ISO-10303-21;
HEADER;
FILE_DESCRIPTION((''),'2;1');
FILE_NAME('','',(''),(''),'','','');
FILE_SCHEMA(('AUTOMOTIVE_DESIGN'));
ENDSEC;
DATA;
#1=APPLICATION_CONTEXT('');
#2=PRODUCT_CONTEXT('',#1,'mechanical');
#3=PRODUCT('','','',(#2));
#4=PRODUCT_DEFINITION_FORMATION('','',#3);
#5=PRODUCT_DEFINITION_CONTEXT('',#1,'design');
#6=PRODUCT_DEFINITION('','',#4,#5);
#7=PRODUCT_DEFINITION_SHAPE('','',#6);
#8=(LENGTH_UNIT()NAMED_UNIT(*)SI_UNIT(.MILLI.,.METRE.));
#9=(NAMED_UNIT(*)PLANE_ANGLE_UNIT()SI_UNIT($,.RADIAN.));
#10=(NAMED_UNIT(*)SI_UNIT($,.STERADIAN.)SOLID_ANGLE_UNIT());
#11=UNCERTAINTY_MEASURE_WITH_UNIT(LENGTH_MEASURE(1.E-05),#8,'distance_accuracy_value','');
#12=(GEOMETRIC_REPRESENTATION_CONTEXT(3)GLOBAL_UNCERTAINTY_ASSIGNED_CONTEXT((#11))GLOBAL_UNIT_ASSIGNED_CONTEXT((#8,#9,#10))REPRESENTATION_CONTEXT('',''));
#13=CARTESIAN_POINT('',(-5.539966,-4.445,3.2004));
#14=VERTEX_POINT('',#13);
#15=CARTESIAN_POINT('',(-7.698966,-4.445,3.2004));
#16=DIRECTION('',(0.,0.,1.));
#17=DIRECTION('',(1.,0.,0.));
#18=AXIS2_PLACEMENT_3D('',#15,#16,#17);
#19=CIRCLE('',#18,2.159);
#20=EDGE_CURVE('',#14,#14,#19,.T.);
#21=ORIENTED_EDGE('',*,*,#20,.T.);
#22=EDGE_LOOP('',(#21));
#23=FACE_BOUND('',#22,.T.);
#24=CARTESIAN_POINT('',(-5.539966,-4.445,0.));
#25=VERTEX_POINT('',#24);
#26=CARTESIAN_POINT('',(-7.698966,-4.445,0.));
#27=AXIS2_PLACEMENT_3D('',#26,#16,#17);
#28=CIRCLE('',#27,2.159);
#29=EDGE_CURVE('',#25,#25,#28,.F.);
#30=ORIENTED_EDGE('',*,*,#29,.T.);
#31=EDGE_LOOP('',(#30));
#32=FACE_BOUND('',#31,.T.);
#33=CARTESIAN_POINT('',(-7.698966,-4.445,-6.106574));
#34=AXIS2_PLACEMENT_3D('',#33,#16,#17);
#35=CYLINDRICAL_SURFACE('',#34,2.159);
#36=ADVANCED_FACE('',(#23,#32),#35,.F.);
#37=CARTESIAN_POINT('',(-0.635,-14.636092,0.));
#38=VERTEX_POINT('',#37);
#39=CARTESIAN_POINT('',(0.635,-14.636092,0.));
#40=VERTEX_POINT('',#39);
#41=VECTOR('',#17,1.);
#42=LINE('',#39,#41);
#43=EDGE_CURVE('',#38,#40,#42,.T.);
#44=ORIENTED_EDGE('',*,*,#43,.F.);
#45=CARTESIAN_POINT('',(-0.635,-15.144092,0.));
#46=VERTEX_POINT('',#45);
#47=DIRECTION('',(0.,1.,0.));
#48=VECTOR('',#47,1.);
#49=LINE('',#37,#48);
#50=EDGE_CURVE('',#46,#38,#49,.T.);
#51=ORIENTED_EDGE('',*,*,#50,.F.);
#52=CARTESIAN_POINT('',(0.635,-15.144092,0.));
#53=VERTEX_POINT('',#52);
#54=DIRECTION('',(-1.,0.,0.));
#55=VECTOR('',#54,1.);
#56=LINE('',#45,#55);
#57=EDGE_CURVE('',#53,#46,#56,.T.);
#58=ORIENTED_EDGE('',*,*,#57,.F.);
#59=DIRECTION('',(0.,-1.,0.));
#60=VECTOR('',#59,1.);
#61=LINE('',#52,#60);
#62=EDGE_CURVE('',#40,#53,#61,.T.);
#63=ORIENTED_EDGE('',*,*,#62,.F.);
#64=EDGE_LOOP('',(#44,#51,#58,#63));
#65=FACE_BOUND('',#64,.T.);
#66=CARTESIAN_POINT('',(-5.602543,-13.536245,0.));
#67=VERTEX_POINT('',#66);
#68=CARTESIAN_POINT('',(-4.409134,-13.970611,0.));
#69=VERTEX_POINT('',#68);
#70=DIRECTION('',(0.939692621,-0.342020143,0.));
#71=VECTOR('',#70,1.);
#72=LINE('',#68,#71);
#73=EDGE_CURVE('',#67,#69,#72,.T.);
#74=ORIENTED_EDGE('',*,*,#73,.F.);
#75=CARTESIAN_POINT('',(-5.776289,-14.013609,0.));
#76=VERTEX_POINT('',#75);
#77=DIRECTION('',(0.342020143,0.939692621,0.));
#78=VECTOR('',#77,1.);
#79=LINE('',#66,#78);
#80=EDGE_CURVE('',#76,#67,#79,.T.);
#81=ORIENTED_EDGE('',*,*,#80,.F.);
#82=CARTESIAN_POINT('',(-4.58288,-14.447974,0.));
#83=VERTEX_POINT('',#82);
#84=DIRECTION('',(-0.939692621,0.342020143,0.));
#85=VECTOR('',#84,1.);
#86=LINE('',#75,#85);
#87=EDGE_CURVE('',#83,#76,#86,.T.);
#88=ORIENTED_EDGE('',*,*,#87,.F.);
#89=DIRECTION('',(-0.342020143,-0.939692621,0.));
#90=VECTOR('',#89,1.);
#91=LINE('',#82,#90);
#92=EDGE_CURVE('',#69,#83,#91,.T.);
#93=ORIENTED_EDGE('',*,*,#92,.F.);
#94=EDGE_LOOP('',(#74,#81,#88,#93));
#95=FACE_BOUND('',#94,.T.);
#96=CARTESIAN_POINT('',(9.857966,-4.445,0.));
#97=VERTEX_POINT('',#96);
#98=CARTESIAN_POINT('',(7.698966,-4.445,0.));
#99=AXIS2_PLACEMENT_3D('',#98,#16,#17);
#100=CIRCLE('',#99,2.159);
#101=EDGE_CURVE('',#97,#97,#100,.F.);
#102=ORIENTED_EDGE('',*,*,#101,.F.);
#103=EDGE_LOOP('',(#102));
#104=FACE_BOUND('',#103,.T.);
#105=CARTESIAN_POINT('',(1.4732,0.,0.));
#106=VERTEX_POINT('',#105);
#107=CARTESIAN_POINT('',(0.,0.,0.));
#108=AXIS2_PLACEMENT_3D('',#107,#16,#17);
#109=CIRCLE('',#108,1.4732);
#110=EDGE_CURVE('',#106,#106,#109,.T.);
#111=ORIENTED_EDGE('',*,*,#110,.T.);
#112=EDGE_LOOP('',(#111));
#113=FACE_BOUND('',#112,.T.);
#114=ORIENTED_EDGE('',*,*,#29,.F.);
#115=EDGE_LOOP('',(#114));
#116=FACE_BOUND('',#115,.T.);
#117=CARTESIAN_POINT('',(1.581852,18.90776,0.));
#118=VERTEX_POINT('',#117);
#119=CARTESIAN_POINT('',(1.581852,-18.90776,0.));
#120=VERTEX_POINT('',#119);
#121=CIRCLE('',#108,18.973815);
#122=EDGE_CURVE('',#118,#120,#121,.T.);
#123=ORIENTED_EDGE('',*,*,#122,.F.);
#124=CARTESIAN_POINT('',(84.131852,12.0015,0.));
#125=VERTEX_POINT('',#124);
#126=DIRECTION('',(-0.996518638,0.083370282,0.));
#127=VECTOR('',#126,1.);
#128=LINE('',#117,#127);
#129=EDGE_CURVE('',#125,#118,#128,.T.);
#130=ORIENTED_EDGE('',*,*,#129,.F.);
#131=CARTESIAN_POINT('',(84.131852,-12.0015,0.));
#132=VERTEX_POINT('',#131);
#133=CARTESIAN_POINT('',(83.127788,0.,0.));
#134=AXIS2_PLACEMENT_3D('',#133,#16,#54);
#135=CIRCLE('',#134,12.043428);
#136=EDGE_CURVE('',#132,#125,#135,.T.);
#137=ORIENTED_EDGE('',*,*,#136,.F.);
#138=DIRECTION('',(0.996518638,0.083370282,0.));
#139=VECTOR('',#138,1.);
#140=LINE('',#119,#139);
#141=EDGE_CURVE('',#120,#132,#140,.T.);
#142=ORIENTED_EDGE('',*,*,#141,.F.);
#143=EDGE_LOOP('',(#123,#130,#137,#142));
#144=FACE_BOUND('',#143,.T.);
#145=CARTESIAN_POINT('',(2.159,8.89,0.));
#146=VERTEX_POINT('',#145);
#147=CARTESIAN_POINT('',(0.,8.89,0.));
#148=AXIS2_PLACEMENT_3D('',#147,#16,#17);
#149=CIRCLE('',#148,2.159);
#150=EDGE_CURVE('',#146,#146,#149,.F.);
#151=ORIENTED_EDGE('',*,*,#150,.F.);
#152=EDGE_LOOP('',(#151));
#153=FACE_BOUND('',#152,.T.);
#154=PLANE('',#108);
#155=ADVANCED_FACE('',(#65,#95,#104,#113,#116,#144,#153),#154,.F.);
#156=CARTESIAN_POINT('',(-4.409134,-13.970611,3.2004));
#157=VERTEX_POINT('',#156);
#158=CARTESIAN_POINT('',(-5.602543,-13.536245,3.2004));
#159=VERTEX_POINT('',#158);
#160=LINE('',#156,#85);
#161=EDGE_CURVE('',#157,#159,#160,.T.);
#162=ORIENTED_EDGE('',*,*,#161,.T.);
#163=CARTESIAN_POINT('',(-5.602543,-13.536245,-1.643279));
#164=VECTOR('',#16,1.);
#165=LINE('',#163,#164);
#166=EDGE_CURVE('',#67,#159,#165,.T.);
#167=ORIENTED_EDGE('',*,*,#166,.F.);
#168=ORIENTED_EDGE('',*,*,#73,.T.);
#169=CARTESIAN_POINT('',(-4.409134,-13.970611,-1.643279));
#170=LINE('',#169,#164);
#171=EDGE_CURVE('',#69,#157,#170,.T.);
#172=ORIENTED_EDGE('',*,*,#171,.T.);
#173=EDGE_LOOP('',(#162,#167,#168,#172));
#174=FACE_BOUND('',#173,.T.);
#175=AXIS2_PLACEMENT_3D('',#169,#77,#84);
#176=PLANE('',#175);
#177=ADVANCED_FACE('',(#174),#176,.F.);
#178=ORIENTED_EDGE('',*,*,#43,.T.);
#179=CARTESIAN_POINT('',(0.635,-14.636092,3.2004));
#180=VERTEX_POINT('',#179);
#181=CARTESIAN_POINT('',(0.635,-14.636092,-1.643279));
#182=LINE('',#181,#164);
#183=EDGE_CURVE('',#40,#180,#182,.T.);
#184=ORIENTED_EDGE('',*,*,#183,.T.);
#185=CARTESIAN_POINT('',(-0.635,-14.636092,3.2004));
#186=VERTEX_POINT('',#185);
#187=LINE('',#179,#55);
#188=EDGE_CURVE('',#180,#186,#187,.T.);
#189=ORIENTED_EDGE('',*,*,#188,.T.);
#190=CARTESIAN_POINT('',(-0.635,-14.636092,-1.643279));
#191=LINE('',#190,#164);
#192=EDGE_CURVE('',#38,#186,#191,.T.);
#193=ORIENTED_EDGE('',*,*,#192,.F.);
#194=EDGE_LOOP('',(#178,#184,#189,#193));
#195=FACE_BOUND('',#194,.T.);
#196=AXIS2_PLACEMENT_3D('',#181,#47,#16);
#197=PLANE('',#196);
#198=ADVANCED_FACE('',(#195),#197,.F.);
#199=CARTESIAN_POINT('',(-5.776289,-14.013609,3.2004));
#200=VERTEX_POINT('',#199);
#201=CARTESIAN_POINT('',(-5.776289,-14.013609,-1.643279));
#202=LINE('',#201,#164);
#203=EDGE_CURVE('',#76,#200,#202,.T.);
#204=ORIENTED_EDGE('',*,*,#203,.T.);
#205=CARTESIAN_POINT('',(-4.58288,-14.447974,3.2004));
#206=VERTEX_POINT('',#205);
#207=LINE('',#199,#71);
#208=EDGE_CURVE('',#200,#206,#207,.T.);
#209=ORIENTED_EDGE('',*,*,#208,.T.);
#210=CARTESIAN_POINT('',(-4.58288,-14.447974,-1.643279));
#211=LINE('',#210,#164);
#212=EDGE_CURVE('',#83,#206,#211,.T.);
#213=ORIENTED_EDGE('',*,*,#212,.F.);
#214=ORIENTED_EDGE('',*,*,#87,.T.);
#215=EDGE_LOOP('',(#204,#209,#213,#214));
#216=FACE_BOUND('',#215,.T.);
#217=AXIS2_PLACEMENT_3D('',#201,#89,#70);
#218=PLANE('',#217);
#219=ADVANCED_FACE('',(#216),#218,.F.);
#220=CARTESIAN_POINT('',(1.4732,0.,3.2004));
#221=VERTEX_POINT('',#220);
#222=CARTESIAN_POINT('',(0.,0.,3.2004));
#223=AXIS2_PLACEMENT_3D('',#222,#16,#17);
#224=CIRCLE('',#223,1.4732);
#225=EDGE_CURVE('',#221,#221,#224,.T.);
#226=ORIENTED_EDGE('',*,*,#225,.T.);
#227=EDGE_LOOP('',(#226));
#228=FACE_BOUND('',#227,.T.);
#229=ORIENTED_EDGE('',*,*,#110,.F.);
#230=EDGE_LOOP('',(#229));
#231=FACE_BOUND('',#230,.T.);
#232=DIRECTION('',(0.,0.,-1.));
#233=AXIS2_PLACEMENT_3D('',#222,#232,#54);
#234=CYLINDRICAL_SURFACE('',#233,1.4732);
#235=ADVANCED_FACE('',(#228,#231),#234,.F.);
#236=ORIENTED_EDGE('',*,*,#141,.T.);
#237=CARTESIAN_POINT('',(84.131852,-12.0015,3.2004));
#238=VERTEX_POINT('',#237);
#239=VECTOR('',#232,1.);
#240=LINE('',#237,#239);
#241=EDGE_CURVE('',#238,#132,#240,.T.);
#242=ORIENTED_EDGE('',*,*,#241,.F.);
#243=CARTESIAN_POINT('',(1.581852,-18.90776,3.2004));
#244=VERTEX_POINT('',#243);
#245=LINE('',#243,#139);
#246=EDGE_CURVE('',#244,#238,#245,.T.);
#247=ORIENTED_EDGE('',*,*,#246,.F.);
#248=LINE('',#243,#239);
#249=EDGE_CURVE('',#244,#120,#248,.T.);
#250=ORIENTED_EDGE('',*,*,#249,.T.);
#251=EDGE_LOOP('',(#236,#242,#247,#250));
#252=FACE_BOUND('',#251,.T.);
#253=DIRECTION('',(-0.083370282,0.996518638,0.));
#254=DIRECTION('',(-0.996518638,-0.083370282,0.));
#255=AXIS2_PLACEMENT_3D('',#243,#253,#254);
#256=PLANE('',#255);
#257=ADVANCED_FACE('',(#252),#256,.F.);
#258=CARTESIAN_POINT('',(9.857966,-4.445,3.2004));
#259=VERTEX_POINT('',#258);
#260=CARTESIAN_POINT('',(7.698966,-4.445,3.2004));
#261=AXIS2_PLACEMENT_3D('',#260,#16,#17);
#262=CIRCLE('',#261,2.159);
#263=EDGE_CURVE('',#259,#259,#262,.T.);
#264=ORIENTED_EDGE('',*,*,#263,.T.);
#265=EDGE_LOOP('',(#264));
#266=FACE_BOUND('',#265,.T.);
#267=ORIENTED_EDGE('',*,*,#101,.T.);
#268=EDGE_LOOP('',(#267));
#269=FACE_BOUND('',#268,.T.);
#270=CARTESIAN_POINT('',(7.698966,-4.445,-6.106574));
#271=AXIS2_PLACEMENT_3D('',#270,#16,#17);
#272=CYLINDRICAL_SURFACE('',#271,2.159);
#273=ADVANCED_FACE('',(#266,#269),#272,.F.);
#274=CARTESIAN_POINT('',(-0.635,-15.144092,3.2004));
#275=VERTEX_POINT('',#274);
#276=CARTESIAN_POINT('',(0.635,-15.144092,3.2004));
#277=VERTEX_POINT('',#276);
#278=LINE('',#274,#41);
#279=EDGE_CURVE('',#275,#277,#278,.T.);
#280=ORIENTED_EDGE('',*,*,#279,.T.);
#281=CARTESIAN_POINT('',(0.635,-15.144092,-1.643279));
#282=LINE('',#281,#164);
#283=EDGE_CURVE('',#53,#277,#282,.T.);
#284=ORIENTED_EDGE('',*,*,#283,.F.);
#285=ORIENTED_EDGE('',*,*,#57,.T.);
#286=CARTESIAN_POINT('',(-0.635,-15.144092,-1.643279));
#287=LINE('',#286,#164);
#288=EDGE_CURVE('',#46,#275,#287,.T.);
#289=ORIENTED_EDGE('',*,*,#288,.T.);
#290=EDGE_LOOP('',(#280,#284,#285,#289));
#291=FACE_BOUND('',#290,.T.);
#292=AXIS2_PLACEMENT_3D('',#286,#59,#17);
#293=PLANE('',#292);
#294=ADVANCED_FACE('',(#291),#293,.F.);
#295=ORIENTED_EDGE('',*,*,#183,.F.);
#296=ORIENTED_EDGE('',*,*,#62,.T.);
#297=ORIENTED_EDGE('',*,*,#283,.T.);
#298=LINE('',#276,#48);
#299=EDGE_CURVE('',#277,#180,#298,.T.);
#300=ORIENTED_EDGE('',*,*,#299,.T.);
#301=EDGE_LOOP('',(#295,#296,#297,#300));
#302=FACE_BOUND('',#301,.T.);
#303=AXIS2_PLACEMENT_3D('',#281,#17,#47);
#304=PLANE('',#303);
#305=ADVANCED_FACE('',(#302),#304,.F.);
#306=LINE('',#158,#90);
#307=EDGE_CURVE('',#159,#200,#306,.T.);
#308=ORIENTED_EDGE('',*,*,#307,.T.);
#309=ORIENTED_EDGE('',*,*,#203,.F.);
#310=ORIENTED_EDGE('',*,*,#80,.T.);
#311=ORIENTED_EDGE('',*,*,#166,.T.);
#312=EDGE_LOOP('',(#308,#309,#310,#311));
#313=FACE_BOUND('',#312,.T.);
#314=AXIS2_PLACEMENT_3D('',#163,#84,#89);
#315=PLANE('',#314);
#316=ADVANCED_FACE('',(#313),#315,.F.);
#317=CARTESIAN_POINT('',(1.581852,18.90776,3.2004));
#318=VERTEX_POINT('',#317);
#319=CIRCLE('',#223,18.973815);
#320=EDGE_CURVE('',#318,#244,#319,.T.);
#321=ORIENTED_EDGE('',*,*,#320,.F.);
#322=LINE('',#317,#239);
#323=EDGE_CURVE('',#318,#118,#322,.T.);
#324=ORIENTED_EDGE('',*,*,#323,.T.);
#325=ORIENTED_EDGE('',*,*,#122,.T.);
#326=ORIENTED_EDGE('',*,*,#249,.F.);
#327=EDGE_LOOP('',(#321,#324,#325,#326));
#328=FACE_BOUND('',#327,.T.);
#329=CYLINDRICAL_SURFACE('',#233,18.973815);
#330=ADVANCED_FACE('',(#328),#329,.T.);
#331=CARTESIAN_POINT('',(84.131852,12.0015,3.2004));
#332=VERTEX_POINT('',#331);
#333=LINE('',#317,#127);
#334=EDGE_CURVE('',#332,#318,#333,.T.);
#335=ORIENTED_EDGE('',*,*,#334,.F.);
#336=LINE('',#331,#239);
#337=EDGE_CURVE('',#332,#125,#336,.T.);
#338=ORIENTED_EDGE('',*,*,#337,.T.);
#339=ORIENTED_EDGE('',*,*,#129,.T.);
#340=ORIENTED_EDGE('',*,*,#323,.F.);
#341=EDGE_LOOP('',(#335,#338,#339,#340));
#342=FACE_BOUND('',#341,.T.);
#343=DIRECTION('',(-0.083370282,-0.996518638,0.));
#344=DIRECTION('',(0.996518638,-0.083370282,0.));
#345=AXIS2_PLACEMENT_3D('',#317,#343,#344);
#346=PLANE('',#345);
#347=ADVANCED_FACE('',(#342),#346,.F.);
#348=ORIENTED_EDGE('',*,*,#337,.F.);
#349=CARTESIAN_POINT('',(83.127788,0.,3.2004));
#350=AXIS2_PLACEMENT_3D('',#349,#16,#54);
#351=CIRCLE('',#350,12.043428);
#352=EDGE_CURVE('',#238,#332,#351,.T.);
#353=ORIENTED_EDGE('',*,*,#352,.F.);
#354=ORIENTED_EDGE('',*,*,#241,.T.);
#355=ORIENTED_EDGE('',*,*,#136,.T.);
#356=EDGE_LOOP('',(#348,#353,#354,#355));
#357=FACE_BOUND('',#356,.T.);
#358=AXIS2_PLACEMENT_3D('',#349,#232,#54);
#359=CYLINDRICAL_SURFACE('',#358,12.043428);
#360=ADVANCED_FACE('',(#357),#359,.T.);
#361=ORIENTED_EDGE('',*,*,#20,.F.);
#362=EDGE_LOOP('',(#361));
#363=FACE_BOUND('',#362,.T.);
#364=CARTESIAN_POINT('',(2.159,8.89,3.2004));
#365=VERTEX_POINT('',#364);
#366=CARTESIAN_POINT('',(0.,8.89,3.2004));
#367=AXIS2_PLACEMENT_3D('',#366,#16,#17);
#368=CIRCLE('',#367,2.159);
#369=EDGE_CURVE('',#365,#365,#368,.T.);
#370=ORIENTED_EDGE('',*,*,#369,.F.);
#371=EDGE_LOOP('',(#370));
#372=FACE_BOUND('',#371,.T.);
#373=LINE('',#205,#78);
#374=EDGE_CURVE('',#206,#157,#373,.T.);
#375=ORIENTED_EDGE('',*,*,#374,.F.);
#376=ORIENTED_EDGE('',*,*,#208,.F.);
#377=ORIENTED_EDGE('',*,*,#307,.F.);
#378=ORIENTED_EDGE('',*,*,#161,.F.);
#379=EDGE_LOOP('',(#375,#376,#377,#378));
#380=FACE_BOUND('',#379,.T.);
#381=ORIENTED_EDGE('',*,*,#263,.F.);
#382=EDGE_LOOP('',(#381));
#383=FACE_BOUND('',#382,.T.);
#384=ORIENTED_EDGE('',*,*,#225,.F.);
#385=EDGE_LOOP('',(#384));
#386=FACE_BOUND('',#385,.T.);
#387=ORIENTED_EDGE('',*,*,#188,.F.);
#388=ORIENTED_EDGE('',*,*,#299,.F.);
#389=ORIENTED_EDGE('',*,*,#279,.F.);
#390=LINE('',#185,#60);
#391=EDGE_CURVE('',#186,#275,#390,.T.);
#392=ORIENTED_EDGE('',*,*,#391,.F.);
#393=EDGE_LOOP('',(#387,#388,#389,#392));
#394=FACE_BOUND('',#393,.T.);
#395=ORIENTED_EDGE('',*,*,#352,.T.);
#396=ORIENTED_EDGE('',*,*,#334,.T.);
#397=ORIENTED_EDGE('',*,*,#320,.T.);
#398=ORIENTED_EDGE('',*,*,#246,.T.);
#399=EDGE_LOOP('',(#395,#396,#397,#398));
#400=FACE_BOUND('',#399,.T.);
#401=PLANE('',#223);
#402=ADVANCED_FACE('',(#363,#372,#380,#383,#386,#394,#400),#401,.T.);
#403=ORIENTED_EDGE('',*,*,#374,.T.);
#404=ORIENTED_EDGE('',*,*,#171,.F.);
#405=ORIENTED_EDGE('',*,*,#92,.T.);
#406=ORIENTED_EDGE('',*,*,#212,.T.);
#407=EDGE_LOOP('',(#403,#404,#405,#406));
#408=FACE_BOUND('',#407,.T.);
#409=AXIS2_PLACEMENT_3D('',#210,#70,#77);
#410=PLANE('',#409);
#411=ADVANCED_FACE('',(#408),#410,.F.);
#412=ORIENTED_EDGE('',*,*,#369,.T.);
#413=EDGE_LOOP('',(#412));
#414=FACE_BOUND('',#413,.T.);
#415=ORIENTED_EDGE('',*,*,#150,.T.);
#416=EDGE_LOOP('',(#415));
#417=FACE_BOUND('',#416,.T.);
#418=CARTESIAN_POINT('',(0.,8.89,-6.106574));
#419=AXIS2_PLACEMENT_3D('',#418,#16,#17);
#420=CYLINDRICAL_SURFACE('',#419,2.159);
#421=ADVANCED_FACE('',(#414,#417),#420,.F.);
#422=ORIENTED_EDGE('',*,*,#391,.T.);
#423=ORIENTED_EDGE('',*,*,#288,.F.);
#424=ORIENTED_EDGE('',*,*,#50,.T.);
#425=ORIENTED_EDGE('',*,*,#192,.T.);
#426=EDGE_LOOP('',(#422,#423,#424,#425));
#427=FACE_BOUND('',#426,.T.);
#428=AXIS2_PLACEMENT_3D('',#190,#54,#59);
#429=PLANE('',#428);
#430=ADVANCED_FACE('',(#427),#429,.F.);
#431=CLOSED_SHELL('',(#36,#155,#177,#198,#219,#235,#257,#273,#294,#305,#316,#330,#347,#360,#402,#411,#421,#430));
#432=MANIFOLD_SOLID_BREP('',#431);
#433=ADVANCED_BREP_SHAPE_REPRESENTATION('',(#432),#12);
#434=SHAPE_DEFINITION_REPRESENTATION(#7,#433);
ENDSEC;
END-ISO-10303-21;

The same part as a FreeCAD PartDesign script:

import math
import FreeCAD as App
import Part
import Sketcher
from FreeCAD import Vector
Q = App.Units.Quantity

doc = App.newDocument("Part")
body = doc.addObject("PartDesign::Body", "Body")

sketch1 = doc.addObject("Sketcher::SketchObject", "Sketch")
body.addObject(sketch1)
sketch1.AttachmentSupport = (doc.XY_Plane, [""])
sketch1.MapMode = "FlatFace"
sketch1.addGeometry(Part.LineSegment(Vector(84.1, 12, 0), Vector(1.6, 18.9, 0)), False)
sketch1.addGeometry(Part.ArcOfCircle(Part.Circle(Vector(0, 0, 0), Vector(0, 0, 1), 19), math.radians(85), math.radians(275)), False)
sketch1.addGeometry(Part.LineSegment(Vector(1.6, -18.9, 0), Vector(84.1, -12, 0)), False)
sketch1.addGeometry(Part.ArcOfCircle(Part.Circle(Vector(83.1, 0, 0), Vector(0, 0, 1), 12), math.radians(-85), math.radians(85)), False)
sketch1.addGeometry(Part.Circle(Vector(0, 0, 0), Vector(0, 0, 1), 1.5), False)
sketch1.addConstraint(Sketcher.Constraint("Tangent", 0, 2, 1, 1))
sketch1.addConstraint(Sketcher.Constraint("Tangent", 1, 2, 2, 1))
sketch1.addConstraint(Sketcher.Constraint("Tangent", 2, 2, 3, 1))
sketch1.addConstraint(Sketcher.Constraint("Tangent", 3, 2, 0, 1))
sketch1.addConstraint(Sketcher.Constraint("Coincident", 1, 3, -1, 1))
sketch1.addConstraint(Sketcher.Constraint("Coincident", 4, 3, -1, 1))
sketch1.addConstraint(Sketcher.Constraint("PointOnObject", 3, 3, -1))
sketch1.addConstraint(Sketcher.Constraint("Diameter", 4, Q("0.116 in")))
sketch1.addConstraint(Sketcher.Constraint("DistanceX", 1, 2, 2, 2, Q("3.25 in")))
sketch1.addConstraint(Sketcher.Constraint("DistanceY", 2, 2, 3, 2, Q("0.945 in")))
sketch1.addConstraint(Sketcher.Constraint("DistanceY", -1, 1, 0, 2, Q("0.7444 in")))
pad1 = doc.addObject("PartDesign::Pad", "Pad")
body.addObject(pad1)
pad1.Profile = sketch1
pad1.Length = Q("0.126 in")

sketch2 = doc.addObject("Sketcher::SketchObject", "Sketch001")
body.addObject(sketch2)
sketch2.AttachmentSupport = (doc.XY_Plane, [""])
sketch2.MapMode = "FlatFace"
sketch2.AttachmentOffset = App.Placement(Vector(0, 0, 0.126 * 25.4), App.Rotation())
sketch2.addGeometry(Part.LineSegment(Vector(-4.6, -14.4, 0), Vector(-4.4, -14, 0)), False)
sketch2.addGeometry(Part.LineSegment(Vector(-4.4, -14, 0), Vector(-5.6, -13.5, 0)), False)
sketch2.addGeometry(Part.LineSegment(Vector(-5.6, -13.5, 0), Vector(-5.8, -14, 0)), False)
sketch2.addGeometry(Part.LineSegment(Vector(-5.8, -14, 0), Vector(-4.6, -14.4, 0)), False)
sketch2.addGeometry(Part.LineSegment(Vector(-0.6, -14.6, 0), Vector(-0.6, -15.1, 0)), False)
sketch2.addGeometry(Part.LineSegment(Vector(-0.6, -15.1, 0), Vector(0.6, -15.1, 0)), False)
sketch2.addGeometry(Part.LineSegment(Vector(0.6, -15.1, 0), Vector(0.6, -14.6, 0)), False)
sketch2.addGeometry(Part.LineSegment(Vector(0.6, -14.6, 0), Vector(-0.6, -14.6, 0)), False)
sketch2.addConstraint(Sketcher.Constraint("Coincident", 0, 2, 1, 1))
sketch2.addConstraint(Sketcher.Constraint("Coincident", 1, 2, 2, 1))
sketch2.addConstraint(Sketcher.Constraint("Coincident", 2, 2, 3, 1))
sketch2.addConstraint(Sketcher.Constraint("Coincident", 3, 2, 0, 1))
sketch2.addConstraint(Sketcher.Constraint("Coincident", 4, 2, 5, 1))
sketch2.addConstraint(Sketcher.Constraint("Coincident", 5, 2, 6, 1))
sketch2.addConstraint(Sketcher.Constraint("Coincident", 6, 2, 7, 1))
sketch2.addConstraint(Sketcher.Constraint("Coincident", 7, 2, 4, 1))
sketch2.addConstraint(Sketcher.Constraint("Vertical", 4))
sketch2.addConstraint(Sketcher.Constraint("Horizontal", 5))
sketch2.addConstraint(Sketcher.Constraint("Vertical", 6))
sketch2.addConstraint(Sketcher.Constraint("Horizontal", 7))
sketch2.addConstraint(Sketcher.Constraint("Perpendicular", 0, 1))
sketch2.addConstraint(Sketcher.Constraint("Perpendicular", 1, 2))
sketch2.addConstraint(Sketcher.Constraint("Perpendicular", 2, 3))
sketch2.addConstraint(Sketcher.Constraint("Angle", 0, Q("70 deg")))
sketch2.addConstraint(Sketcher.Constraint("DistanceX", 5, 1, 5, 2, Q("0.05 in")))
sketch2.addConstraint(Sketcher.Constraint("DistanceY", 4, 2, 4, 1, Q("0.02 in")))
sketch2.addConstraint(Sketcher.Constraint("Distance", 0, Q("0.02 in")))
sketch2.addConstraint(Sketcher.Constraint("Distance", 1, Q("0.05 in")))
sketch2.addConstraint(Sketcher.Constraint("DistanceX", 4, 2, -1, 1, Q("0.025 in")))
sketch2.addConstraint(Sketcher.Constraint("DistanceY", 4, 2, 0, 2, Q("0.0462001 in")))
sketch2.addConstraint(Sketcher.Constraint("DistanceY", 0, 2, -1, 1, Q("13.970611 mm")))
sketch2.addConstraint(Sketcher.Constraint("DistanceX", 2, 2, -1, 1, Q("5.776289 mm")))
pocket1 = doc.addObject("PartDesign::Pocket", "Pocket")
body.addObject(pocket1)
pocket1.Profile = sketch2
pocket1.Length = Q("0.126 in")

sketch3 = doc.addObject("Sketcher::SketchObject", "Sketch002")
body.addObject(sketch3)
sketch3.AttachmentSupport = (doc.XY_Plane, [""])
sketch3.MapMode = "FlatFace"
sketch3.AttachmentOffset = App.Placement(Vector(0, 0, 0.126 * 25.4), App.Rotation())
sketch3.addGeometry(Part.Circle(Vector(0, 8.9, 0), Vector(0, 0, 1), 2.2), False)
sketch3.addGeometry(Part.Circle(Vector(7.7, -4.4, 0), Vector(0, 0, 1), 2.2), False)
sketch3.addGeometry(Part.Circle(Vector(-7.7, -4.4, 0), Vector(0, 0, 1), 2.2), False)
sketch3.addConstraint(Sketcher.Constraint("Equal", 0, 1))
sketch3.addConstraint(Sketcher.Constraint("Equal", 1, 2))
sketch3.addConstraint(Sketcher.Constraint("Symmetric", 1, 3, 2, 3, -2))
sketch3.addConstraint(Sketcher.Constraint("PointOnObject", 0, 3, -2))
sketch3.addConstraint(Sketcher.Constraint("Diameter", 0, Q("0.17 in")))
sketch3.addConstraint(Sketcher.Constraint("DistanceY", -1, 1, 0, 3, Q("0.35 in")))
sketch3.addConstraint(Sketcher.Constraint("DistanceY", 1, 3, -1, 1, Q("0.175 in")))
sketch3.addConstraint(Sketcher.Constraint("DistanceX", 2, 3, 1, 3, Q("15.397932 mm")))
pocket2 = doc.addObject("PartDesign::Pocket", "Pocket001")
body.addObject(pocket2)
pocket2.Profile = sketch3
pocket2.Length = Q("0.126 in")

doc.recompute()
